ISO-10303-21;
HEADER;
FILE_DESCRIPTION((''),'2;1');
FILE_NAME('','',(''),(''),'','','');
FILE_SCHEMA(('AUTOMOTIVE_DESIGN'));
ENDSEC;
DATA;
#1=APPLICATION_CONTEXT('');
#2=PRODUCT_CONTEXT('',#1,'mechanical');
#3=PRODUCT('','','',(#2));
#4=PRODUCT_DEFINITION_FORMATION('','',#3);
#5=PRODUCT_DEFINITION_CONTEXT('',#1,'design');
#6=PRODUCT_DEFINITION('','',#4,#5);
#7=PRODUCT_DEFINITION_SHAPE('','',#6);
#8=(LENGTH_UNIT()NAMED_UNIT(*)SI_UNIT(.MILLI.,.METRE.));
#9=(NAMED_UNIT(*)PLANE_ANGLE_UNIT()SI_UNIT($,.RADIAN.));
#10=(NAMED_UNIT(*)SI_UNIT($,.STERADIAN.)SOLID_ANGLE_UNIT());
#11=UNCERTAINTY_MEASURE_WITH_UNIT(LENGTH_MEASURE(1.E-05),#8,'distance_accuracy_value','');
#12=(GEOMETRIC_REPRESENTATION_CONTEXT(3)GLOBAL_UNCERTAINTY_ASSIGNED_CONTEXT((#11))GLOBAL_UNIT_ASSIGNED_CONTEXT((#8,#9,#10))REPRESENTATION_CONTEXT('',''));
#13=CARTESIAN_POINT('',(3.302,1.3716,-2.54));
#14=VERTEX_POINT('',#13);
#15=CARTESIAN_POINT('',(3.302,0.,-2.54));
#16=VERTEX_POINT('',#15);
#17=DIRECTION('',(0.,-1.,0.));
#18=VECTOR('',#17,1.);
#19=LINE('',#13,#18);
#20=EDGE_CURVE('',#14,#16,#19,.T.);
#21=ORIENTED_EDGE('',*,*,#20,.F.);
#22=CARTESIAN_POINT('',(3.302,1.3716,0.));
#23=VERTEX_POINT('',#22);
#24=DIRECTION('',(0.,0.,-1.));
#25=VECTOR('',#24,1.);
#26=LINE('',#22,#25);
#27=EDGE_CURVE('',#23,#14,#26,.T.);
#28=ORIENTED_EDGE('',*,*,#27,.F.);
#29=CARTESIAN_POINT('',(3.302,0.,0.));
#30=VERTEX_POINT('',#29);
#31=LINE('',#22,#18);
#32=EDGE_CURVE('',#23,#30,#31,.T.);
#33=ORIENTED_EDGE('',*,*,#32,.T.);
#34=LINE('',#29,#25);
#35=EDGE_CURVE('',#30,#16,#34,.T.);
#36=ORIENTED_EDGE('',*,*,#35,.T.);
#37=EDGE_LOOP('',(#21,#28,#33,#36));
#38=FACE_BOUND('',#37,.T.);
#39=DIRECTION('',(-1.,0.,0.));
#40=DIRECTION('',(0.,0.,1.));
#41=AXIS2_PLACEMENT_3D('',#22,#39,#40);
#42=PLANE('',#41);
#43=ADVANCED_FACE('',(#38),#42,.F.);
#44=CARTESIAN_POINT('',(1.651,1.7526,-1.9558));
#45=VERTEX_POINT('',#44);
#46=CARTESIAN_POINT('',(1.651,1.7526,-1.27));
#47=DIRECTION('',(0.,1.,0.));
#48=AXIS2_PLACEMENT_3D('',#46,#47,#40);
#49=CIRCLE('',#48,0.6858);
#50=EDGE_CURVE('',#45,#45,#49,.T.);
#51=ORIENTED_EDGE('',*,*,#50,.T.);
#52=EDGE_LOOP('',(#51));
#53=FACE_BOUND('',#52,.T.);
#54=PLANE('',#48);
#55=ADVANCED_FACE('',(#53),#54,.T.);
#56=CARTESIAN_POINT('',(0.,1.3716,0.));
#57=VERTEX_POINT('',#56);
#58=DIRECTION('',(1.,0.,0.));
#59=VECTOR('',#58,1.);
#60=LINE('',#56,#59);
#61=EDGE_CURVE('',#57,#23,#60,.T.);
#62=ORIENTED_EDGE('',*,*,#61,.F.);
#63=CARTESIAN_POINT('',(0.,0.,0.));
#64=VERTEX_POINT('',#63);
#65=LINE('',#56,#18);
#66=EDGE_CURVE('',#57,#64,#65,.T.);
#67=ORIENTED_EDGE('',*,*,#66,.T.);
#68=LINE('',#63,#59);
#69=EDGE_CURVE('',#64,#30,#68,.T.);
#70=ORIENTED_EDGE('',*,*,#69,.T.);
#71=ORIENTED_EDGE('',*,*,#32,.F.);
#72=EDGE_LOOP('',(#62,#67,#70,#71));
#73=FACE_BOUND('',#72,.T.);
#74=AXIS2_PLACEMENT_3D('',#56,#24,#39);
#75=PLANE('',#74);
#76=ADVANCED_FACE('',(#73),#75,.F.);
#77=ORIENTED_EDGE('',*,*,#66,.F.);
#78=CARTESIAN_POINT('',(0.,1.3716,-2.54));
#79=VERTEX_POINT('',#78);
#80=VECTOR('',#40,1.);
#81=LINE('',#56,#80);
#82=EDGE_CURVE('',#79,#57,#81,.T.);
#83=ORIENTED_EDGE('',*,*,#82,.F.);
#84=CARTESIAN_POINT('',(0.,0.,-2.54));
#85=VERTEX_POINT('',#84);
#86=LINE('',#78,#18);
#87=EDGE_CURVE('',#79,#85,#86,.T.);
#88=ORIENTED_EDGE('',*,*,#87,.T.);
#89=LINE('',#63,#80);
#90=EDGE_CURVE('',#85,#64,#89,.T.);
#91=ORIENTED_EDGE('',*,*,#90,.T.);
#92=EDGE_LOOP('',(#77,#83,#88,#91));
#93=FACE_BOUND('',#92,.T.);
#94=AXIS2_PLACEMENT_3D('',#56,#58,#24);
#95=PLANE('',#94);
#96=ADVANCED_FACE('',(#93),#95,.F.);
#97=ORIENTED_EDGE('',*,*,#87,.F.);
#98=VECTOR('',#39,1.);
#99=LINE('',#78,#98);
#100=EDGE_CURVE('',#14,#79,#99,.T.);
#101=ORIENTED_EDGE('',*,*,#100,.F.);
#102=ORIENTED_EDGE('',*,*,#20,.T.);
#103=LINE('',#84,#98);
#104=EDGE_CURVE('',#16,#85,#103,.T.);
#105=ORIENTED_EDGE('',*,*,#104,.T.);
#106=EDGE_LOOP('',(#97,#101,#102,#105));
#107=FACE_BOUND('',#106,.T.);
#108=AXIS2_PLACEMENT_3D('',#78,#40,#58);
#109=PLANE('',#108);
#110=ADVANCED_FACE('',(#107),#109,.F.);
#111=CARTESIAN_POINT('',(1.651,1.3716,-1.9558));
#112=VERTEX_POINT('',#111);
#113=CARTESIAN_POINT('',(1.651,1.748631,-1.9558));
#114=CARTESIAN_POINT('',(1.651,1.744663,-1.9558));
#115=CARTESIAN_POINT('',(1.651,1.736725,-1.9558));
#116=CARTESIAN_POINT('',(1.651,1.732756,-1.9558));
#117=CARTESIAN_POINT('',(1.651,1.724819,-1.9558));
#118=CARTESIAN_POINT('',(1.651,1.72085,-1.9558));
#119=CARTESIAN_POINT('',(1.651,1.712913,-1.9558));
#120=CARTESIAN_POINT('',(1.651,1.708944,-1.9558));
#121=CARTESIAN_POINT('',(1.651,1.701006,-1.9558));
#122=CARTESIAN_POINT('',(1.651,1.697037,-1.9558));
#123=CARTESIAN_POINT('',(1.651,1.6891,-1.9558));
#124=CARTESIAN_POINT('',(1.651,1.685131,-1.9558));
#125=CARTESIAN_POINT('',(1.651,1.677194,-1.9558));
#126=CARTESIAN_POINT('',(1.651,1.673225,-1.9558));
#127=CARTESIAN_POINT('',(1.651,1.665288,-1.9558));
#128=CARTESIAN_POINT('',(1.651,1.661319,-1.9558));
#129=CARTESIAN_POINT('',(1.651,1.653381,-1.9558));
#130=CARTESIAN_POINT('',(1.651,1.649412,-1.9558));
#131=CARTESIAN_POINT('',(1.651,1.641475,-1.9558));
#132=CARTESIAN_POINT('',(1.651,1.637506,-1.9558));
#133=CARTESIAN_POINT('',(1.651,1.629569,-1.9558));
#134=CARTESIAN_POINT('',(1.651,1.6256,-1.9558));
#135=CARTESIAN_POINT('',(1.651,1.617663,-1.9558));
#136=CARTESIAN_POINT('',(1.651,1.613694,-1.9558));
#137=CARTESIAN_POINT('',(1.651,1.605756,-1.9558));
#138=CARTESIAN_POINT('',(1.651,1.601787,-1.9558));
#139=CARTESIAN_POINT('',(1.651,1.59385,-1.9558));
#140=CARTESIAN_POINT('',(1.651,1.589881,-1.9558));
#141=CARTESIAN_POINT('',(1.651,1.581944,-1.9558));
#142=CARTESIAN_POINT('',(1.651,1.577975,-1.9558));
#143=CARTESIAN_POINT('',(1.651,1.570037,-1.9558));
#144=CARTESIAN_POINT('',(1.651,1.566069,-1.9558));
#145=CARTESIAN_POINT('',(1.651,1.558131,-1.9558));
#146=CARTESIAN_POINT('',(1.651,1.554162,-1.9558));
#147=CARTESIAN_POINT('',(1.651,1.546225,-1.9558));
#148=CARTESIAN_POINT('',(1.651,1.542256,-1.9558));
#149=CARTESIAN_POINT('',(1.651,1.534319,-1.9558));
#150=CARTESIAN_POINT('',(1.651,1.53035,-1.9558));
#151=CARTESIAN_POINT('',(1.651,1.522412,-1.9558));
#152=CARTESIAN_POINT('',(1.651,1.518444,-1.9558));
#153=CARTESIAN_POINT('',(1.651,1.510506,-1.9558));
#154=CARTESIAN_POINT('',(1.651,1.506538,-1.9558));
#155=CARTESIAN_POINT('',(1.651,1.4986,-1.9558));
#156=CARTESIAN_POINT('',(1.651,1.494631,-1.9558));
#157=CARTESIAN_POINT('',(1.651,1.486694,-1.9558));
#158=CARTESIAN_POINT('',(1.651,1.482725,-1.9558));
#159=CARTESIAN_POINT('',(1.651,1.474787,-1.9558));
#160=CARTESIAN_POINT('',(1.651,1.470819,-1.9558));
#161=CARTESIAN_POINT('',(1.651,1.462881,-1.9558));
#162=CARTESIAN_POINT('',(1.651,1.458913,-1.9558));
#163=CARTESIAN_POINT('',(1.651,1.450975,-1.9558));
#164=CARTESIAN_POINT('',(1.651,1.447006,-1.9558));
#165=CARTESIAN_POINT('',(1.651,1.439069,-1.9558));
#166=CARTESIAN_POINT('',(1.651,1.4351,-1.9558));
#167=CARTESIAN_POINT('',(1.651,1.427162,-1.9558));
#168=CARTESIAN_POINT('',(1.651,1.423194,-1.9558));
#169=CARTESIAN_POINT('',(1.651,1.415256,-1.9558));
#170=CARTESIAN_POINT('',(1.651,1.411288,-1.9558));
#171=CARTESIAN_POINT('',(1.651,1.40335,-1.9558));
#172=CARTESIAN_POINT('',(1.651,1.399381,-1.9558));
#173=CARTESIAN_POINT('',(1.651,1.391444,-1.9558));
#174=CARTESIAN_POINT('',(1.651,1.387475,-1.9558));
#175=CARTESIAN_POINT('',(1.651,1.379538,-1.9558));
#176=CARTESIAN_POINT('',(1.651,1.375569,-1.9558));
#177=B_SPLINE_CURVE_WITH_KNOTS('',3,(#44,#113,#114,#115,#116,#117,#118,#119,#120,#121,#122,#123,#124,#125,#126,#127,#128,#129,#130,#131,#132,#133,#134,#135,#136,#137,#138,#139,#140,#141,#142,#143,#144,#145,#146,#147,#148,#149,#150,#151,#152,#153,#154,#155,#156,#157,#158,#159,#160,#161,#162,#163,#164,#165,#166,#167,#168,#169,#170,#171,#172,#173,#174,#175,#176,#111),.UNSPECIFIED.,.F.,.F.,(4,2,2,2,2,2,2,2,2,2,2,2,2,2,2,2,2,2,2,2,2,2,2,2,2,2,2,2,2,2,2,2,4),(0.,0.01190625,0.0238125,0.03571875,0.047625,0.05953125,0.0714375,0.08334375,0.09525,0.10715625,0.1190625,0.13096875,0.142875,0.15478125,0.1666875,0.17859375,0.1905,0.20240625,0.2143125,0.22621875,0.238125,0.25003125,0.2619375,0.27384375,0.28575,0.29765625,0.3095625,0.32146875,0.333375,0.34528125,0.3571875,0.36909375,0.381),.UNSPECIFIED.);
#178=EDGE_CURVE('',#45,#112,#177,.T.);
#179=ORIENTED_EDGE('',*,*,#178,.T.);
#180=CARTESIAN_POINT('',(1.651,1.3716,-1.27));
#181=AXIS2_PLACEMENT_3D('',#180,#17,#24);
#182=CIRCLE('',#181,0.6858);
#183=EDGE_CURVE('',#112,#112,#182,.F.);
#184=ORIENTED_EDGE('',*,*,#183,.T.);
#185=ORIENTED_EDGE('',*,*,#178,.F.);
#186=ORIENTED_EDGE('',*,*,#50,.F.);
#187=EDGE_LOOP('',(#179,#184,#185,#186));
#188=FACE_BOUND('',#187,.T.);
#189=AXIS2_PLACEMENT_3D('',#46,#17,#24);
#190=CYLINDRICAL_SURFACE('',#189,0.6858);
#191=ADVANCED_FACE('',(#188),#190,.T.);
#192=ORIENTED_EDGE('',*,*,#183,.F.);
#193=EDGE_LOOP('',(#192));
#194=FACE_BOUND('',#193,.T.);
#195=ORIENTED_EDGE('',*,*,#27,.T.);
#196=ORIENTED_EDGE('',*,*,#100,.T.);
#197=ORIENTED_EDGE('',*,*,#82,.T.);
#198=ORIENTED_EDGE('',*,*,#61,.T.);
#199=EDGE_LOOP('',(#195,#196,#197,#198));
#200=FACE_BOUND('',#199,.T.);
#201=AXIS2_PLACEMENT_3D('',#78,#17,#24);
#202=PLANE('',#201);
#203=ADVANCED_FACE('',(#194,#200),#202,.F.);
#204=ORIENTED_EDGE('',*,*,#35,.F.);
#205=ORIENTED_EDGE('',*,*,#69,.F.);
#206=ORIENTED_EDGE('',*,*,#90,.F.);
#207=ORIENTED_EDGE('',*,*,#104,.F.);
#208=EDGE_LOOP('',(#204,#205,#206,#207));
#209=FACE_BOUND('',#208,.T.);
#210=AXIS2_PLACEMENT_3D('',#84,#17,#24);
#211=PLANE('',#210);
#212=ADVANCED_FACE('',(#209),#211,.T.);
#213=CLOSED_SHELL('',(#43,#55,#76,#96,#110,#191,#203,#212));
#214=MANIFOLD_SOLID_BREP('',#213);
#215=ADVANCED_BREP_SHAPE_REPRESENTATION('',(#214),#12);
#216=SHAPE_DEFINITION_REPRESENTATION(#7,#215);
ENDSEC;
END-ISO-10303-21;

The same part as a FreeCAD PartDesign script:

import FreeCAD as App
import Part
import Sketcher

V = App.Vector
Q = App.Units.Quantity


def add_polygon(sketch, points):
    """Adds a closed chain of lines whose ends are joined by coincident constraints."""
    first, n = sketch.GeometryCount, len(points)
    for a, b in zip(points, points[1:] + points[:1]):
        sketch.addGeometry(Part.LineSegment(App.Vector(*a, 0), App.Vector(*b, 0)), False)
    for i in range(n):
        sketch.addConstraint(Sketcher.Constraint("Coincident", first + i, 2, first + (i + 1) % n, 1))

doc = App.newDocument("Part")
body = doc.addObject("PartDesign::Body", "Body")

# Sketch on XZ plane
sketch1 = doc.addObject("Sketcher::SketchObject", "Sketch")
body.addObject(sketch1)
sketch1.AttachmentSupport = (doc.XZ_Plane, [""])
sketch1.MapMode = "FlatFace"
add_polygon(sketch1, [(0, -2.54), (0, 0), (3.302, 0), (3.302, -2.54)])  # lines 0-3
sketch1.addConstraint(Sketcher.Constraint("Vertical", 0))
sketch1.addConstraint(Sketcher.Constraint("Horizontal", 1))
sketch1.addConstraint(Sketcher.Constraint("Vertical", 2))
sketch1.addConstraint(Sketcher.Constraint("Horizontal", 3))
sketch1.addConstraint(Sketcher.Constraint("Coincident", 0, 2, -1, 1))
sketch1.addConstraint(Sketcher.Constraint("DistanceY", 0, 1, 0, 2, Q("0.1 in")))
sketch1.addConstraint(Sketcher.Constraint("DistanceX", 1, 1, 1, 2, Q("0.13 in")))
pad1 = doc.addObject("PartDesign::Pad", "Pad")
body.addObject(pad1)
pad1.Profile = sketch1
pad1.Length = Q("0.054 in")
pad1.Reversed = True

# Sketch on XZ plane
sketch2 = doc.addObject("Sketcher::SketchObject", "Sketch001")
body.addObject(sketch2)
sketch2.AttachmentSupport = (doc.XZ_Plane, [""])
sketch2.MapMode = "FlatFace"
sketch2.AttachmentOffset = App.Placement(V(0, 0, -0.054 * 25.4), App.Rotation())
sketch2.addGeometry(Part.Circle(V(1.651, -1.27, 0), V(0, 0, 1), 0.6858), False)
sketch2.addConstraint(Sketcher.Constraint("Diameter", 0, Q("0.054 in")))
sketch2.addConstraint(Sketcher.Constraint("DistanceY", 0, 3, -1, 1, Q("0.05 in")))
sketch2.addConstraint(Sketcher.Constraint("DistanceX", -1, 1, 0, 3, Q("0.065 in")))
pad2 = doc.addObject("PartDesign::Pad", "Pad001")
body.addObject(pad2)
pad2.Profile = sketch2
pad2.Length = Q("0.015 in")
pad2.Reversed = True

doc.recompute()
